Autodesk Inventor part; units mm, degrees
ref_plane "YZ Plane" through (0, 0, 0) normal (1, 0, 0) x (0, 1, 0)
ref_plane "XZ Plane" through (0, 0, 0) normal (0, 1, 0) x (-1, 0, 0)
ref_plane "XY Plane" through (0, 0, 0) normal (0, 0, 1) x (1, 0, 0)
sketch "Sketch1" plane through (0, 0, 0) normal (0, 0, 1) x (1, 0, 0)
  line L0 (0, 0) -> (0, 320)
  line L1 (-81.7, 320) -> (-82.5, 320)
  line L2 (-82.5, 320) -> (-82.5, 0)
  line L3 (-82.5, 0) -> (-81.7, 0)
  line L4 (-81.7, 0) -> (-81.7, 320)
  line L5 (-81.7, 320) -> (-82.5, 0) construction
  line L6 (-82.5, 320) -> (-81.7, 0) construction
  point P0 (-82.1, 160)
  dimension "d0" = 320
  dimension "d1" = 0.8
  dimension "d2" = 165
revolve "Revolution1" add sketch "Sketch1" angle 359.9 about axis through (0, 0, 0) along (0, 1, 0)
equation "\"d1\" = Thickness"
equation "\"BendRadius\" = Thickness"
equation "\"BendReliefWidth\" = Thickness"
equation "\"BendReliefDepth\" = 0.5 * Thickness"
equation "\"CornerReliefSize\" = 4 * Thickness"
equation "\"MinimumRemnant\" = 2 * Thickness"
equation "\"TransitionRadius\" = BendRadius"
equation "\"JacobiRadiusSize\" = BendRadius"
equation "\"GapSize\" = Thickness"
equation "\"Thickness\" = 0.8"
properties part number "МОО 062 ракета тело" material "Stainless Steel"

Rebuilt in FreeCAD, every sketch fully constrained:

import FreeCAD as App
import Part
import Sketcher
Q = App.Units.Quantity


def add_polygon(sketch, points):
    """Adds a closed chain of lines whose ends are joined by coincident constraints."""
    first, n = sketch.GeometryCount, len(points)
    for a, b in zip(points, points[1:] + points[:1]):
        sketch.addGeometry(Part.LineSegment(App.Vector(*a, 0), App.Vector(*b, 0)), False)
    for i in range(n):
        sketch.addConstraint(Sketcher.Constraint("Coincident", first + i, 2, first + (i + 1) % n, 1))

doc = App.newDocument("Part")
body = doc.addObject("PartDesign::Body", "Body")

# Sketch on XY plane
sketch1 = body.newObject("Sketcher::SketchObject", "Sketch")
sketch1.AttachmentSupport = (doc.getObject("XY_Plane"), [""])
sketch1.MapMode = "FlatFace"
add_polygon(sketch1, [(-81.7, 0), (-81.7, 320), (-82.5, 320), (-82.5, 0)])  # lines 0-3
sketch1.addConstraint([
    Sketcher.Constraint("Vertical", 0),
    Sketcher.Constraint("Horizontal", 1),
    Sketcher.Constraint("Vertical", 2),
    Sketcher.Constraint("Horizontal", 3),
    Sketcher.Constraint("PointOnObject", 2, 2, -1),
    Sketcher.Constraint("DistanceY", 0, 1, 0, 2, Q("320 mm")),
    Sketcher.Constraint("DistanceX", 1, 2, 1, 1, Q("0.8 mm")),
    Sketcher.Constraint("DistanceX", 0, 2, -1, 1, Q("81.7 mm")),
])
revolution = body.newObject("PartDesign::Revolution", "Revolution")
revolution.Profile = sketch1
revolution.ReferenceAxis = (sketch1, ["V_Axis"])
revolution.Angle = 359.9

doc.recompute()
